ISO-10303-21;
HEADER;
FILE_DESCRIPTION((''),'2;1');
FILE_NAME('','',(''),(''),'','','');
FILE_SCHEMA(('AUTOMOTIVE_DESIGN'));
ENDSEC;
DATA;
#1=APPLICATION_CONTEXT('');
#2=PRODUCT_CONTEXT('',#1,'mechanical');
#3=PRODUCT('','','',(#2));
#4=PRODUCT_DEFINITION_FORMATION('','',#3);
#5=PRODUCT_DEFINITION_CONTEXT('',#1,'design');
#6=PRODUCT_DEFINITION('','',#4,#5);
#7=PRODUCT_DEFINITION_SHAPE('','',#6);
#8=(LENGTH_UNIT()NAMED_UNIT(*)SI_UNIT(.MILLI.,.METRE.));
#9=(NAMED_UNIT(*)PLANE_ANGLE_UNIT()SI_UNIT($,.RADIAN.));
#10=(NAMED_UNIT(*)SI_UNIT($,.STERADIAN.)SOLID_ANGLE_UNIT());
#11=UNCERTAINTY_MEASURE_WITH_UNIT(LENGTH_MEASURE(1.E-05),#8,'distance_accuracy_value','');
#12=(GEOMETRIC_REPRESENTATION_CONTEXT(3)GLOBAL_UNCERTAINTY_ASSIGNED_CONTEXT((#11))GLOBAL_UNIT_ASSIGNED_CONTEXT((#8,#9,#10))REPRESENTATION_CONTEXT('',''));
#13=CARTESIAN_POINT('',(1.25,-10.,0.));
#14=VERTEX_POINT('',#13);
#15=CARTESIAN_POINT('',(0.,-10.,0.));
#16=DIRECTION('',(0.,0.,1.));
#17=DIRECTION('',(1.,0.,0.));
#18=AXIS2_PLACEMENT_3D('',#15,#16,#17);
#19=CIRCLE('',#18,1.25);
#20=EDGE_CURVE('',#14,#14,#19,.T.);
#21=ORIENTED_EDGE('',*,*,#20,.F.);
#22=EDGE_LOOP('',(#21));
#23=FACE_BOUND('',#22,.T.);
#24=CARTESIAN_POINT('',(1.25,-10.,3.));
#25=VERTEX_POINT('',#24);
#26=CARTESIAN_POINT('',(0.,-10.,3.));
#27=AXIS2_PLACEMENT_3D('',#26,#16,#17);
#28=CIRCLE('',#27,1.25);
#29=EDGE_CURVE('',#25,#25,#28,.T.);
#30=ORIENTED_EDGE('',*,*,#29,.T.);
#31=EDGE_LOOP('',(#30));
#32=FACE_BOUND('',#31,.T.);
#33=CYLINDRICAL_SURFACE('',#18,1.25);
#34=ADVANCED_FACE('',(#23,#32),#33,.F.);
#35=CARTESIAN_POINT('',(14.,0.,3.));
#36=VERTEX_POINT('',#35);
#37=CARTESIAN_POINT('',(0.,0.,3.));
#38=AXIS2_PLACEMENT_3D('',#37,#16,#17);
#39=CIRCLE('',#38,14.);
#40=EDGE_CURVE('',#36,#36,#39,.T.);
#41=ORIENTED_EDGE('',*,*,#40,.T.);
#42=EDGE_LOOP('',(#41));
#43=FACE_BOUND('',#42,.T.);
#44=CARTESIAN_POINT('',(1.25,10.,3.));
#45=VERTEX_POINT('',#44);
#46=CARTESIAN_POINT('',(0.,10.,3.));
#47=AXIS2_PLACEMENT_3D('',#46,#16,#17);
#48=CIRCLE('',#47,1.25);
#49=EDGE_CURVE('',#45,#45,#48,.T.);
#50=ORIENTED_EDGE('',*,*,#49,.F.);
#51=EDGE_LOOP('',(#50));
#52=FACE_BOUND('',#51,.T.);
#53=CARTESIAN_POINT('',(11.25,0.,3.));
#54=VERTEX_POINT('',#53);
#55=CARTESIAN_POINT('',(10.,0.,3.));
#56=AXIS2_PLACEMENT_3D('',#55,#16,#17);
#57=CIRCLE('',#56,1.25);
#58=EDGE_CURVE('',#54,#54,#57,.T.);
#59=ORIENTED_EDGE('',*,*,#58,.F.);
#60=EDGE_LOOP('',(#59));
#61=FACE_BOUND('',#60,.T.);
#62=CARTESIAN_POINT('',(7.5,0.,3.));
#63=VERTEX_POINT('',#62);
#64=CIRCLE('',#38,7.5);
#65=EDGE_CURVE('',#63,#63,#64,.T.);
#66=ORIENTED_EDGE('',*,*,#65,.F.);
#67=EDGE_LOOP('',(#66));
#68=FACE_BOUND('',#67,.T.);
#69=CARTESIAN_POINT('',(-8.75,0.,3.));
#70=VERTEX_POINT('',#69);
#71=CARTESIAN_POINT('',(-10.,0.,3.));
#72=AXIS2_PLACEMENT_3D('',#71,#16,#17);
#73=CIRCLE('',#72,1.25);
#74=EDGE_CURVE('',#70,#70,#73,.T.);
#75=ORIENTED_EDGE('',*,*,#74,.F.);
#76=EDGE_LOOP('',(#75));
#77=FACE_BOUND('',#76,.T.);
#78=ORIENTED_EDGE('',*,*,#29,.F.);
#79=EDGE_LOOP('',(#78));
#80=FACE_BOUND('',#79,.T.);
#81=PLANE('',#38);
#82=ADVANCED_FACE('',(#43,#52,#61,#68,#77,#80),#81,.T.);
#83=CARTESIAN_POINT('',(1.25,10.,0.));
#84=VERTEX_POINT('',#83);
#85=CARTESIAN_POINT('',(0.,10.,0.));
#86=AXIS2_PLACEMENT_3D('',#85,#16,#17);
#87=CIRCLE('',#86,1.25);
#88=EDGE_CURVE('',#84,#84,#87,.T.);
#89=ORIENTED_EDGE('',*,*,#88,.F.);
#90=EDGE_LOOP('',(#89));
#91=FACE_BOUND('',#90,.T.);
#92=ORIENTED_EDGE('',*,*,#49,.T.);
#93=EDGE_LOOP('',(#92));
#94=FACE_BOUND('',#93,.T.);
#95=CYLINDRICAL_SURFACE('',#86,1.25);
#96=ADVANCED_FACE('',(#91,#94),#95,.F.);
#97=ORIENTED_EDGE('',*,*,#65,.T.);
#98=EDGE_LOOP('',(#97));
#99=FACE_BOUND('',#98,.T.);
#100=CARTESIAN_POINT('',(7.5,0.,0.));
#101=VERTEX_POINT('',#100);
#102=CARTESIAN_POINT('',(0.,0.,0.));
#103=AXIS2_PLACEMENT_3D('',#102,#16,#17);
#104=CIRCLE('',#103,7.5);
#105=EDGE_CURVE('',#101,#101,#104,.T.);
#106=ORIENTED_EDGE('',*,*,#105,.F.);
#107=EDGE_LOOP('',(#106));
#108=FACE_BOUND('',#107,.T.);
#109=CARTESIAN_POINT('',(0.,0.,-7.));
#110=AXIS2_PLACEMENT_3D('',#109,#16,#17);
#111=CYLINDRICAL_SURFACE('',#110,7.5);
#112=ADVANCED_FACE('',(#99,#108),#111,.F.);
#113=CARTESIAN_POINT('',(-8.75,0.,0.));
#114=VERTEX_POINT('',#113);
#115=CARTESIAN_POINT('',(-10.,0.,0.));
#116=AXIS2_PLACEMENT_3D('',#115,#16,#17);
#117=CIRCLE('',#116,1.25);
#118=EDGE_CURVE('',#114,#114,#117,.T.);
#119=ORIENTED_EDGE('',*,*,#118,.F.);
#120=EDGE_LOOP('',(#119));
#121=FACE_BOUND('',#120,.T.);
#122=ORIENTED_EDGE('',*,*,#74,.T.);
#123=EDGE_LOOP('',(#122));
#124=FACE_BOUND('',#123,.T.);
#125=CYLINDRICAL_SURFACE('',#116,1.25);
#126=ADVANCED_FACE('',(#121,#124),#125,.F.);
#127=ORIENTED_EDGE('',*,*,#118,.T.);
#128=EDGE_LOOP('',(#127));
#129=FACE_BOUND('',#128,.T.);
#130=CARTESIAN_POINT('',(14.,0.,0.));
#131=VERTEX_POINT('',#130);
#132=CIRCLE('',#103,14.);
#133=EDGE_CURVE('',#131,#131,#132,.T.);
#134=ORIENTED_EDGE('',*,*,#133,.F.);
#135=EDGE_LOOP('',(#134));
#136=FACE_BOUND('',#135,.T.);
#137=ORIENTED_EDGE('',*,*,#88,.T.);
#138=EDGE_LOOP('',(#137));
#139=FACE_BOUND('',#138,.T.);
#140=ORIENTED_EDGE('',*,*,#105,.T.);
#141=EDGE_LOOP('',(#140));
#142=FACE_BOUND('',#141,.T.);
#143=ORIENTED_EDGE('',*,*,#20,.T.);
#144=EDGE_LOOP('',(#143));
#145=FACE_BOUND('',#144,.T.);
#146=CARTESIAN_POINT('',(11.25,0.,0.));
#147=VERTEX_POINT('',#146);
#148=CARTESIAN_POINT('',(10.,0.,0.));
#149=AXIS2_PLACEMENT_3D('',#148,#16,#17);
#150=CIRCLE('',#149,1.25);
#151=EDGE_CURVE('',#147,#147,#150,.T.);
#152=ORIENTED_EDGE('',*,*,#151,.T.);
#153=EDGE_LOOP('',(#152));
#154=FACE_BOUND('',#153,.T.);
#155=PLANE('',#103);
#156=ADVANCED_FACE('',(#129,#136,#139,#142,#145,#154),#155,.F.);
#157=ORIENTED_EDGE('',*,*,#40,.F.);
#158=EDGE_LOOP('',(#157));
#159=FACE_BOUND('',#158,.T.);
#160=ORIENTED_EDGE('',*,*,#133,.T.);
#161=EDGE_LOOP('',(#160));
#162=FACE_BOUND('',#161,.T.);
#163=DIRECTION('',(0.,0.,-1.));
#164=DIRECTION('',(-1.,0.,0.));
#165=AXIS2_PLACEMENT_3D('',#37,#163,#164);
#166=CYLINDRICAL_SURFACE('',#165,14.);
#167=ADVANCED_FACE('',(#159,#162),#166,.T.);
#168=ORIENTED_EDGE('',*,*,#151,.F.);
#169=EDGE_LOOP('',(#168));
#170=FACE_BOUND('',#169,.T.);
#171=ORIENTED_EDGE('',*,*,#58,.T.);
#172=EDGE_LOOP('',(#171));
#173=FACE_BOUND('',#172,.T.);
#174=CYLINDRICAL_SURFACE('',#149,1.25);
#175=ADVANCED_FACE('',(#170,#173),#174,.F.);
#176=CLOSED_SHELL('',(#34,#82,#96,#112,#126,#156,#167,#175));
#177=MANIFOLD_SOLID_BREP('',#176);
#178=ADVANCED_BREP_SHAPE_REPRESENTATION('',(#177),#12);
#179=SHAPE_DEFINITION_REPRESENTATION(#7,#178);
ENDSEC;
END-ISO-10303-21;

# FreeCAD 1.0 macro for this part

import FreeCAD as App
import Part
import Sketcher
from FreeCAD import Vector

doc = App.newDocument("Part")
body = doc.addObject("PartDesign::Body", "Body")

# Sketch on XY plane
sketch1 = doc.addObject("Sketcher::SketchObject", "Sketch")
body.addObject(sketch1)
sketch1.AttachmentSupport = (doc.XY_Plane, [""])
sketch1.MapMode = "FlatFace"
sketch1.addGeometry(Part.Circle(Vector(0, 0, 0), Vector(0, 0, 1), 14), False)
sketch1.addConstraint(Sketcher.Constraint("Coincident", 0, 3, -1, 1))
sketch1.addConstraint(Sketcher.Constraint("Diameter", 0, 28.0))
pad1 = doc.addObject("PartDesign::Pad", "Pad")
body.addObject(pad1)
pad1.Profile = sketch1
pad1.Length = 3

# Sketch on XY plane
sketch2 = doc.addObject("Sketcher::SketchObject", "Sketch001")
body.addObject(sketch2)
sketch2.AttachmentSupport = (doc.XY_Plane, [""])
sketch2.MapMode = "FlatFace"
sketch2.AttachmentOffset = App.Placement(Vector(0, 0, 3), App.Rotation())
sketch2.addGeometry(Part.Circle(Vector(10, 0, 0), Vector(0, 0, 1), 1.25), False)
sketch2.addGeometry(Part.Circle(Vector(0, 10, 0), Vector(0, 0, 1), 1.25), False)
sketch2.addGeometry(Part.Circle(Vector(-10, 0, 0), Vector(0, 0, 1), 1.25), False)
sketch2.addGeometry(Part.Circle(Vector(0, -10, 0), Vector(0, 0, 1), 1.25), False)
sketch2.addConstraint(Sketcher.Constraint("Equal", 0, 1))
sketch2.addConstraint(Sketcher.Constraint("Equal", 1, 2))
sketch2.addConstraint(Sketcher.Constraint("Equal", 2, 3))
sketch2.addConstraint(Sketcher.Constraint("Symmetric", 0, 3, 2, 3, -1, 1))
sketch2.addConstraint(Sketcher.Constraint("Symmetric", 1, 3, 3, 3, -1, 1))
sketch2.addConstraint(Sketcher.Constraint("PointOnObject", 0, 3, -1))
sketch2.addConstraint(Sketcher.Constraint("PointOnObject", 1, 3, -2))
sketch2.addConstraint(Sketcher.Constraint("Diameter", 0, 2.5))
sketch2.addConstraint(Sketcher.Constraint("DistanceX", -1, 1, 0, 3, 10.0))
sketch2.addConstraint(Sketcher.Constraint("DistanceY", -1, 1, 1, 3, 10.0))
pocket1 = doc.addObject("PartDesign::Pocket", "Pocket")
body.addObject(pocket1)
pocket1.Profile = sketch2
pocket1.Length = 3

# Sketch on XY plane
sketch3 = doc.addObject("Sketcher::SketchObject", "Sketch002")
body.addObject(sketch3)
sketch3.AttachmentSupport = (doc.XY_Plane, [""])
sketch3.MapMode = "FlatFace"
sketch3.AttachmentOffset = App.Placement(Vector(0, 0, 3), App.Rotation())
sketch3.addGeometry(Part.Circle(Vector(0, 0, 0), Vector(0, 0, 1), 7.5), False)
sketch3.addConstraint(Sketcher.Constraint("Coincident", 0, 3, -1, 1))
sketch3.addConstraint(Sketcher.Constraint("Diameter", 0, 15.0))
pocket2 = doc.addObject("PartDesign::Pocket", "Pocket001")
body.addObject(pocket2)
pocket2.Profile = sketch3
pocket2.Length = 10

doc.recompute()
